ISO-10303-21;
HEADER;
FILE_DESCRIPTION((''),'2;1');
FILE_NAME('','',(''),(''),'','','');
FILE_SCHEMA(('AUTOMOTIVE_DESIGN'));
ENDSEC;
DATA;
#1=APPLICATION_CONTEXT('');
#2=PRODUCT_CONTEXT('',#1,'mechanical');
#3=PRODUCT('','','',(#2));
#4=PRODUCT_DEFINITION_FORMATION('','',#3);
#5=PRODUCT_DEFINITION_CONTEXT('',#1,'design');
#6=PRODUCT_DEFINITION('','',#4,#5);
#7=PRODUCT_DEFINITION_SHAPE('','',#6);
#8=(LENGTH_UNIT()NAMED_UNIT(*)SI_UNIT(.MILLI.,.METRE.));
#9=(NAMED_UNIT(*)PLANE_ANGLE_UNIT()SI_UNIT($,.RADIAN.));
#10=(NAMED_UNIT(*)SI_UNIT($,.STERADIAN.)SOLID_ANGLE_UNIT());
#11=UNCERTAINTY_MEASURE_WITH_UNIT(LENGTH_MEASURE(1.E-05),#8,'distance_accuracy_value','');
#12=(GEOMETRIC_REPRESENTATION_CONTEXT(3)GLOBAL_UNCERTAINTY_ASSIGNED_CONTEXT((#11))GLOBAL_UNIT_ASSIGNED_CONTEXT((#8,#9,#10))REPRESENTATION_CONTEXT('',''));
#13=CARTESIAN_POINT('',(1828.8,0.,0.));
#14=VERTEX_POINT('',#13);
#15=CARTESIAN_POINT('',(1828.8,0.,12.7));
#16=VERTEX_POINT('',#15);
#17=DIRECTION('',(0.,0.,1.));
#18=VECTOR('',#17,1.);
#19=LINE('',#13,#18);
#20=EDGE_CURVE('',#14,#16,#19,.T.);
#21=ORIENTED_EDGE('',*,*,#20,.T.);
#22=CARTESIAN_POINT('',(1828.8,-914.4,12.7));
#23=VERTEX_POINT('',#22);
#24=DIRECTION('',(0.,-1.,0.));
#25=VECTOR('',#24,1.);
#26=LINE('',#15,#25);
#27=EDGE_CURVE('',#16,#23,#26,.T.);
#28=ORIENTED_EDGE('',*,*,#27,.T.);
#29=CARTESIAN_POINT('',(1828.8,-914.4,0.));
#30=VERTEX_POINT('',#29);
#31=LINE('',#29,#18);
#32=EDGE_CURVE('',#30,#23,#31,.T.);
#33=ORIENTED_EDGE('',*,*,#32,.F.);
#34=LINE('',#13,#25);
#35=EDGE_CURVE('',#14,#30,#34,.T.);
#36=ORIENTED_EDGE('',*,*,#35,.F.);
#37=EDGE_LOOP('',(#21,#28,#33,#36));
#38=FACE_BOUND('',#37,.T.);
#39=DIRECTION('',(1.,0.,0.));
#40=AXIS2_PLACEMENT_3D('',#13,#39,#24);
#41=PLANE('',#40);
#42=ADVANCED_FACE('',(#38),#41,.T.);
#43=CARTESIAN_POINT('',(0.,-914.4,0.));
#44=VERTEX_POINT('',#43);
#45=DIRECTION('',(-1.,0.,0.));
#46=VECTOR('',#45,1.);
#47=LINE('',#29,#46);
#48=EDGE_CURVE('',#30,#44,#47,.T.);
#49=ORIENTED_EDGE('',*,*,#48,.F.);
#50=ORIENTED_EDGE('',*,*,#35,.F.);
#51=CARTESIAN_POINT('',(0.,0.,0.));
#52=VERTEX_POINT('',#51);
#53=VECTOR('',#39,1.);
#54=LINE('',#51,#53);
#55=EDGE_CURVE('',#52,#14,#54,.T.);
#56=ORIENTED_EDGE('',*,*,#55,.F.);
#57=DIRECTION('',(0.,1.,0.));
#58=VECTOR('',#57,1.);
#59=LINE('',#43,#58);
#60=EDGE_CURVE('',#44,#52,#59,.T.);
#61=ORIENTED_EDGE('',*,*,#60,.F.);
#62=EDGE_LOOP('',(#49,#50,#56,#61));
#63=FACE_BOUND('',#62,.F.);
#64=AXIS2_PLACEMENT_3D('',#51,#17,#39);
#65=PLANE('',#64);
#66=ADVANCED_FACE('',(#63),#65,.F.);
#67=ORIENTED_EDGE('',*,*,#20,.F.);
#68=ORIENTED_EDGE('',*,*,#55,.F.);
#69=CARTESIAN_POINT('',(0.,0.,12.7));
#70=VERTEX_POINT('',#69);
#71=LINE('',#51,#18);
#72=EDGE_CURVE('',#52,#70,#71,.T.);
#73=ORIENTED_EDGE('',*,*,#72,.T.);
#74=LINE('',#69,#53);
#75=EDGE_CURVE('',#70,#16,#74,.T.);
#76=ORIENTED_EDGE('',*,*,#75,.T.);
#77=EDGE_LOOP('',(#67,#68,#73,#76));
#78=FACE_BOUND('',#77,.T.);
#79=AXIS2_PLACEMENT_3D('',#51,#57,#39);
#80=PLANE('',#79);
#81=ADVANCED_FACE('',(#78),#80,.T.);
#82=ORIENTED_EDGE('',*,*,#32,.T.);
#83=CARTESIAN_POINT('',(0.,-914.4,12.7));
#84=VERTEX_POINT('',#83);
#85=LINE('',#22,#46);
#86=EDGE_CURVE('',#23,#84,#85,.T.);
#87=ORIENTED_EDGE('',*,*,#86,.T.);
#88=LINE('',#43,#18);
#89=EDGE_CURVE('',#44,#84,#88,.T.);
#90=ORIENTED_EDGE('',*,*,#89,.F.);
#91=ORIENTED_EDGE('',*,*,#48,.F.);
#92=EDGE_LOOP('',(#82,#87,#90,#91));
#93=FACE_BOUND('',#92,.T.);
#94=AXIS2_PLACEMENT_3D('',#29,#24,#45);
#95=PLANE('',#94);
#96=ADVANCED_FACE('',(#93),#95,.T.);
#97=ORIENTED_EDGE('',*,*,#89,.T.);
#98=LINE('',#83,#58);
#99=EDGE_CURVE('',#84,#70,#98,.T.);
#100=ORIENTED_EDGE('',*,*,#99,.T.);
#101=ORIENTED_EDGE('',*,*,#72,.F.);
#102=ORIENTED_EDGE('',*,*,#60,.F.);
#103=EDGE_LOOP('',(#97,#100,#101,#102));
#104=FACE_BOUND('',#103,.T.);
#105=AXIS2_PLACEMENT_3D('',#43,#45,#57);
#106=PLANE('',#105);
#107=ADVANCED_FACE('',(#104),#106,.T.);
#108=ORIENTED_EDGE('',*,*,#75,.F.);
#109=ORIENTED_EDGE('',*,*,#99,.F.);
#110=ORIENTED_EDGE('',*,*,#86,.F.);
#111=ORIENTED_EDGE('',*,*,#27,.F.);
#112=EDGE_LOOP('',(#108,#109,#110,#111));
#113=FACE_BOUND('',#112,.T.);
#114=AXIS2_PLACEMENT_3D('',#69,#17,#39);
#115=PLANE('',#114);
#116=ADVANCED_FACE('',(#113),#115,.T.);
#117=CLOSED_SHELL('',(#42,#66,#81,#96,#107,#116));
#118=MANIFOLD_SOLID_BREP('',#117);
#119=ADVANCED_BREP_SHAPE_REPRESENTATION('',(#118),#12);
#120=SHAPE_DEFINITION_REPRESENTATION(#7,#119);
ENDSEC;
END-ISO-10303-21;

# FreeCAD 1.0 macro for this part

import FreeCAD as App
import Part
import Sketcher
Q = App.Units.Quantity


def add_polygon(sketch, points):
    """Adds a closed chain of lines whose ends are joined by coincident constraints."""
    first, n = sketch.GeometryCount, len(points)
    for a, b in zip(points, points[1:] + points[:1]):
        sketch.addGeometry(Part.LineSegment(App.Vector(*a, 0), App.Vector(*b, 0)), False)
    for i in range(n):
        sketch.addConstraint(Sketcher.Constraint("Coincident", first + i, 2, first + (i + 1) % n, 1))

doc = App.newDocument("Part")
body = doc.addObject("PartDesign::Body", "Body")

# Sketch on XY plane
sketch1 = body.newObject("Sketcher::SketchObject", "Sketch")
sketch1.AttachmentSupport = (doc.getObject("XY_Plane"), [""])
sketch1.MapMode = "FlatFace"
add_polygon(sketch1, [(1828.8, 0), (0, 0), (0, -914.4), (1828.8, -914.4)])  # lines 0-3
sketch1.addConstraint(Sketcher.Constraint("Horizontal", 0))
sketch1.addConstraint(Sketcher.Constraint("Vertical", 1))
sketch1.addConstraint(Sketcher.Constraint("Horizontal", 2))
sketch1.addConstraint(Sketcher.Constraint("Vertical", 3))
sketch1.addConstraint(Sketcher.Constraint("Coincident", 0, 2, -1, 1))
sketch1.addConstraint(Sketcher.Constraint("DistanceX", 0, 2, 0, 1, Q("72 in")))
sketch1.addConstraint(Sketcher.Constraint("DistanceY", 1, 2, 1, 1, Q("36 in")))
pad1 = body.newObject("PartDesign::Pad", "Pad")
pad1.Profile = sketch1
pad1.Length = Q("0.5 in")

doc.recompute()
